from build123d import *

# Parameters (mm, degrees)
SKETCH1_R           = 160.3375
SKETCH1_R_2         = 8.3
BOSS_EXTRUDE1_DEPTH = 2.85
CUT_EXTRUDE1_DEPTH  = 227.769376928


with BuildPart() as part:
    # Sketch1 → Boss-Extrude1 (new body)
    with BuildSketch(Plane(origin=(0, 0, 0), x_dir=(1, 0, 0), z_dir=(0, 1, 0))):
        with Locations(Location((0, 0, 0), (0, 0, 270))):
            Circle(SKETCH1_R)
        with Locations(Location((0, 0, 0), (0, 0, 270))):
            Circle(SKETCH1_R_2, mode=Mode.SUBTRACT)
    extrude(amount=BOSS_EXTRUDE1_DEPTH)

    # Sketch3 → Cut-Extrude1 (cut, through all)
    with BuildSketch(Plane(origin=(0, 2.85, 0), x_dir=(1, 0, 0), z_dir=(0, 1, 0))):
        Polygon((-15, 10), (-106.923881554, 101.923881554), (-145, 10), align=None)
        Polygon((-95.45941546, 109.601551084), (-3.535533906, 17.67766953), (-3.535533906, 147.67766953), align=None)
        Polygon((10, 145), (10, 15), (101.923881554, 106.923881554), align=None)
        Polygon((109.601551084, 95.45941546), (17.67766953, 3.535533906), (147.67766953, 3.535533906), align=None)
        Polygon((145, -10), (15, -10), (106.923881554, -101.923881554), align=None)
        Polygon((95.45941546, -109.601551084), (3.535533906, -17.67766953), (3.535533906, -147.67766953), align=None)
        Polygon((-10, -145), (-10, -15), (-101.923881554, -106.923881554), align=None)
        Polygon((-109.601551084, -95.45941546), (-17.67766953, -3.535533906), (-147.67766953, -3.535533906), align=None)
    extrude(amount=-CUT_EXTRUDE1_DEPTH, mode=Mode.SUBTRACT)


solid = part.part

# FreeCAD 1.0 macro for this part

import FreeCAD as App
import Part
import Sketcher

V = App.Vector
Q = App.Units.Quantity


def add_polygon(sketch, points):
    """Adds a closed chain of lines whose ends are joined by coincident constraints."""
    first, n = sketch.GeometryCount, len(points)
    for a, b in zip(points, points[1:] + points[:1]):
        sketch.addGeometry(Part.LineSegment(App.Vector(*a, 0), App.Vector(*b, 0)), False)
    for i in range(n):
        sketch.addConstraint(Sketcher.Constraint("Coincident", first + i, 2, first + (i + 1) % n, 1))

doc = App.newDocument("Part")
params = doc.addObject("Spreadsheet::Sheet", "Params")
for row, (alias, value) in enumerate([
    ("sketch1_diameter", "16.6 mm"),
    ("pad1_length", "2.85 mm"),
    ("sketch2_width", "130 mm"),
    ("sketch2_length", "130 mm"),
], start=1):
    params.set(f"A{row}", alias)
    params.set(f"B{row}", "=" + value)
    params.setAlias(f"B{row}", alias)

body = doc.addObject("PartDesign::Body", "Body")

# Sketch on XZ plane
sketch1 = doc.addObject("Sketcher::SketchObject", "Sketch")
body.addObject(sketch1)
sketch1.AttachmentSupport = (doc.XZ_Plane, [""])
sketch1.MapMode = "FlatFace"
sketch1.addGeometry(Part.Circle(V(0, 0, 0), V(0, 0, 1), 160), False)
sketch1.addGeometry(Part.Circle(V(0, 0, 0), V(0, 0, 1), 8), False)
sketch1.addConstraint(Sketcher.Constraint("Coincident", 0, 3, -1, 1))
sketch1.addConstraint(Sketcher.Constraint("Coincident", 1, 3, -1, 1))
sketch1.addConstraint(Sketcher.Constraint("Diameter", 1, Q("16.6 mm")))
sketch1.addConstraint(Sketcher.Constraint("Diameter", 0, Q("320.675 mm")))
sketch1.setExpression("Constraints[2]", "Params.sketch1_diameter")
pad1 = doc.addObject("PartDesign::Pad", "Pad")
body.addObject(pad1)
pad1.Profile = sketch1
pad1.setExpression("Length", "Params.pad1_length")
pad1.Reversed = True

# Sketch on XZ plane
sketch2 = doc.addObject("Sketcher::SketchObject", "Sketch001")
body.addObject(sketch2)
sketch2.AttachmentSupport = (doc.XZ_Plane, [""])
sketch2.MapMode = "FlatFace"
sketch2.AttachmentOffset = App.Placement(V(0, 0, -2.85), App.Rotation())
add_polygon(sketch2, [(-15, -10), (-107, -102), (-145, -10)])  # lines 0-2
add_polygon(sketch2, [(-95, -110), (-4, -18), (-4, -148)])  # lines 3-5
add_polygon(sketch2, [(10, -145), (10, -15), (102, -107)])  # lines 6-8
add_polygon(sketch2, [(110, -95), (18, -4), (148, -4)])  # lines 9-11
add_polygon(sketch2, [(145, 10), (15, 10), (107, 102)])  # lines 12-14
add_polygon(sketch2, [(95, 110), (4, 18), (4, 148)])  # lines 15-17
add_polygon(sketch2, [(-10, 145), (-10, 15), (-102, 107)])  # lines 18-20
add_polygon(sketch2, [(-110, 95), (-18, 4), (-148, 4)])  # lines 21-23
sketch2.addConstraint(Sketcher.Constraint("Horizontal", 2))
sketch2.addConstraint(Sketcher.Constraint("Vertical", 4))
sketch2.addConstraint(Sketcher.Constraint("Vertical", 6))
sketch2.addConstraint(Sketcher.Constraint("Horizontal", 10))
sketch2.addConstraint(Sketcher.Constraint("Horizontal", 12))
sketch2.addConstraint(Sketcher.Constraint("Vertical", 16))
sketch2.addConstraint(Sketcher.Constraint("Vertical", 18))
sketch2.addConstraint(Sketcher.Constraint("Horizontal", 22))
sketch2.addConstraint(Sketcher.Constraint("Symmetric", 2, 2, 12, 2, -1, 1))
sketch2.addConstraint(Sketcher.Constraint("Symmetric", 0, 2, 13, 2, -1, 1))
sketch2.addConstraint(Sketcher.Constraint("Symmetric", 3, 2, 15, 2, -1, 1))
sketch2.addConstraint(Sketcher.Constraint("Symmetric", 5, 2, 17, 2, -1, 1))
sketch2.addConstraint(Sketcher.Constraint("Symmetric", 6, 2, 18, 2, -1, 1))
sketch2.addConstraint(Sketcher.Constraint("Symmetric", 7, 2, 19, 2, -1, 1))
sketch2.addConstraint(Sketcher.Constraint("Symmetric", 9, 2, 21, 2, -1, 1))
sketch2.addConstraint(Sketcher.Constraint("Symmetric", 11, 2, 23, 2, -1, 1))
sketch2.addConstraint(Sketcher.Constraint("Parallel", 0, 3))
sketch2.addConstraint(Sketcher.Constraint("Perpendicular", 3, 7))
sketch2.addConstraint(Sketcher.Constraint("Perpendicular", 1, 8))
sketch2.addConstraint(Sketcher.Constraint("Parallel", 7, 9))
sketch2.addConstraint(Sketcher.Constraint("Perpendicular", 5, 11))
sketch2.addConstraint(Sketcher.Constraint("Perpendicular", 8, 14))
sketch2.addConstraint(Sketcher.Constraint("Perpendicular", 11, 17))
sketch2.addConstraint(Sketcher.Constraint("Perpendicular", 14, 20))
sketch2.addConstraint(Sketcher.Constraint("Perpendicular", 17, 23))
sketch2.addConstraint(Sketcher.Constraint("Equal", 2, 10))
sketch2.addConstraint(Sketcher.Constraint("Equal", 22, 4))
sketch2.addConstraint(Sketcher.Constraint("Equal", 4, 6))
sketch2.addConstraint(Sketcher.Constraint("Equal", 0, 3))
sketch2.addConstraint(Sketcher.Constraint("Equal", 1, 5))
sketch2.addConstraint(Sketcher.Constraint("DistanceX", 2, 1, 2, 2, Q("130 mm")))
sketch2.addConstraint(Sketcher.Constraint("Distance", 0, Q("130 mm")))
sketch2.addConstraint(Sketcher.Constraint("DistanceX", 1, 2, -1, 1, Q("145 mm")))
sketch2.addConstraint(Sketcher.Constraint("DistanceY", 1, 2, -1, 1, Q("10 mm")))
sketch2.addConstraint(Sketcher.Constraint("DistanceX", -1, 1, 6, 2, Q("10 mm")))
sketch2.addConstraint(Sketcher.Constraint("DistanceY", 6, 2, -1, 1, Q("15 mm")))
sketch2.addConstraint(Sketcher.Constraint("DistanceY", 3, 2, -1, 1, Q("17.67767 mm")))
sketch2.addConstraint(Sketcher.Constraint("DistanceX", -1, 1, 9, 2, Q("17.67767 mm")))
sketch2.addConstraint(Sketcher.Constraint("DistanceX", 3, 2, -1, 1, Q("3.535534 mm")))
sketch2.addConstraint(Sketcher.Constraint("DistanceY", 9, 2, -1, 1, Q("3.535534 mm")))
sketch2.setExpression("Constraints[54]", "Params.sketch2_width")
sketch2.setExpression("Constraints[55]", "Params.sketch2_length")
pocket1 = doc.addObject("PartDesign::Pocket", "Pocket")
body.addObject(pocket1)
pocket1.Profile = sketch2
pocket1.Type = "ThroughAll"
pocket1.Reversed = True

doc.recompute()
